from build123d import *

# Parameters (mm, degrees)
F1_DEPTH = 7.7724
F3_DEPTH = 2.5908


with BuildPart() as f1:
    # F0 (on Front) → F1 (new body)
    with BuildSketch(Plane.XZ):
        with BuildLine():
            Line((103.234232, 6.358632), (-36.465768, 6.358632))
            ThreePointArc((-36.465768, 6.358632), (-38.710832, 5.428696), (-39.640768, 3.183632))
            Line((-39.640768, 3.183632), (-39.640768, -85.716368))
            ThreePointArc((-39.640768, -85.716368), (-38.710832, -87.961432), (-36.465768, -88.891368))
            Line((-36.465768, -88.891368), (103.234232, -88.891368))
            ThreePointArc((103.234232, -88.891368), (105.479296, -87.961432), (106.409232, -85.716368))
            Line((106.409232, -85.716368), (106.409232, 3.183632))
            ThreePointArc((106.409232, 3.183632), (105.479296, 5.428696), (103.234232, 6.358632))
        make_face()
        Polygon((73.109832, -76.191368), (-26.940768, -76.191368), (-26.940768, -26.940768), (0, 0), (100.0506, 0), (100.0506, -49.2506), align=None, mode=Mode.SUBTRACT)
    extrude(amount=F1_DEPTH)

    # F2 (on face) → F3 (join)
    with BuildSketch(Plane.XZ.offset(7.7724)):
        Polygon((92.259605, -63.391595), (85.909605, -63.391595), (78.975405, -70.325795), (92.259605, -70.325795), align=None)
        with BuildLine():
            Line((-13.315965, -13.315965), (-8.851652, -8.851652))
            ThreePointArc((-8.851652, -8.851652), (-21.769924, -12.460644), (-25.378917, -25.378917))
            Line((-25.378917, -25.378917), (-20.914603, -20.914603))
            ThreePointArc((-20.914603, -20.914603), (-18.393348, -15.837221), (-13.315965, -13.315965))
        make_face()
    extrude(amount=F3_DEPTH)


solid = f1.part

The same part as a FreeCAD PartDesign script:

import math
import FreeCAD as App
import Part
import Sketcher

V = App.Vector
Q = App.Units.Quantity

doc = App.newDocument("Part")
body = doc.addObject("PartDesign::Body", "Body")

# Sketch on XZ plane
sketch1 = body.newObject("Sketcher::SketchObject", "Sketch")
sketch1.AttachmentSupport = (doc.getObject("XZ_Plane"), [""])
sketch1.MapMode = "FlatFace"
sketch1.addGeometry(Part.LineSegment(V(103.2, 6.4, 0), V(-36.5, 6.4, 0)), False)
sketch1.addGeometry(Part.ArcOfCircle(Part.Circle(V(-36.5, 3.2, 0), V(0, 0, 1), 3.2), math.radians(90), math.radians(180)), False)
sketch1.addGeometry(Part.LineSegment(V(-39.6, 3.2, 0), V(-39.6, -85.7, 0)), False)
sketch1.addGeometry(Part.ArcOfCircle(Part.Circle(V(-36.5, -85.7, 0), V(0, 0, 1), 3.2), math.radians(-180), math.radians(-90)), False)
sketch1.addGeometry(Part.LineSegment(V(-36.5, -88.9, 0), V(103.2, -88.9, 0)), False)
sketch1.addGeometry(Part.ArcOfCircle(Part.Circle(V(103.2, -85.7, 0), V(0, 0, 1), 3.2), math.radians(-90), math.radians(0)), False)
sketch1.addGeometry(Part.LineSegment(V(106.4, -85.7, 0), V(106.4, 3.2, 0)), False)
sketch1.addGeometry(Part.ArcOfCircle(Part.Circle(V(103.2, 3.2, 0), V(0, 0, 1), 3.2), math.radians(0), math.radians(90)), False)
sketch1.addGeometry(Part.LineSegment(V(100.1, -49.3, 0), V(73.1, -76.2, 0)), False)
sketch1.addGeometry(Part.LineSegment(V(73.1, -76.2, 0), V(-26.9, -76.2, 0)), False)
sketch1.addGeometry(Part.LineSegment(V(-26.9, -76.2, 0), V(-26.9, -26.9, 0)), False)
sketch1.addGeometry(Part.LineSegment(V(-26.9, -26.9, 0), V(0, 0, 0)), False)
sketch1.addGeometry(Part.LineSegment(V(0, 0, 0), V(100.1, 0, 0)), False)
sketch1.addGeometry(Part.LineSegment(V(100.1, 0, 0), V(100.1, -49.3, 0)), False)
sketch1.addConstraint(Sketcher.Constraint("Tangent", 0, 2, 1, 1))
sketch1.addConstraint(Sketcher.Constraint("Tangent", 1, 2, 2, 1))
sketch1.addConstraint(Sketcher.Constraint("Tangent", 2, 2, 3, 1))
sketch1.addConstraint(Sketcher.Constraint("Tangent", 3, 2, 4, 1))
sketch1.addConstraint(Sketcher.Constraint("Tangent", 4, 2, 5, 1))
sketch1.addConstraint(Sketcher.Constraint("Tangent", 5, 2, 6, 1))
sketch1.addConstraint(Sketcher.Constraint("Tangent", 6, 2, 7, 1))
sketch1.addConstraint(Sketcher.Constraint("Tangent", 7, 2, 0, 1))
sketch1.addConstraint(Sketcher.Constraint("Coincident", 8, 2, 9, 1))
sketch1.addConstraint(Sketcher.Constraint("Coincident", 9, 2, 10, 1))
sketch1.addConstraint(Sketcher.Constraint("Coincident", 10, 2, 11, 1))
sketch1.addConstraint(Sketcher.Constraint("Coincident", 11, 2, 12, 1))
sketch1.addConstraint(Sketcher.Constraint("Coincident", 12, 2, 13, 1))
sketch1.addConstraint(Sketcher.Constraint("Coincident", 13, 2, 8, 1))
sketch1.addConstraint(Sketcher.Constraint("Horizontal", 0))
sketch1.addConstraint(Sketcher.Constraint("Vertical", 2))
sketch1.addConstraint(Sketcher.Constraint("Horizontal", 4))
sketch1.addConstraint(Sketcher.Constraint("Vertical", 6))
sketch1.addConstraint(Sketcher.Constraint("Horizontal", 9))
sketch1.addConstraint(Sketcher.Constraint("Vertical", 10))
sketch1.addConstraint(Sketcher.Constraint("Horizontal", 12))
sketch1.addConstraint(Sketcher.Constraint("Vertical", 13))
sketch1.addConstraint(Sketcher.Constraint("Coincident", 11, 2, -1, 1))
sketch1.addConstraint(Sketcher.Constraint("Equal", 1, 3))
sketch1.addConstraint(Sketcher.Constraint("Equal", 3, 5))
sketch1.addConstraint(Sketcher.Constraint("Equal", 5, 7))
sketch1.addConstraint(Sketcher.Constraint("Parallel", 8, 11))
sketch1.addConstraint(Sketcher.Constraint("Equal", 9, 12))
sketch1.addConstraint(Sketcher.Constraint("DistanceX", 0, 2, 0, 1, Q("5.5 in")))
sketch1.addConstraint(Sketcher.Constraint("DistanceY", 2, 2, 2, 1, Q("3.5 in")))
sketch1.addConstraint(Sketcher.Constraint("Angle", 8, Q("-135 deg")))
sketch1.addConstraint(Sketcher.Constraint("Radius", 1, Q("0.125 in")))
sketch1.addConstraint(Sketcher.Constraint("Distance", 8, Q("1.5 in")))
sketch1.addConstraint(Sketcher.Constraint("DistanceY", 4, 2, 8, 2, Q("0.5 in")))
sketch1.addConstraint(Sketcher.Constraint("DistanceX", 2, 2, 9, 2, Q("0.5 in")))
sketch1.addConstraint(Sketcher.Constraint("DistanceX", 9, 2, 9, 1, Q("3.939 in")))
sketch1.addConstraint(Sketcher.Constraint("DistanceY", 10, 1, 10, 2, Q("1.939 in")))
pad1 = body.newObject("PartDesign::Pad", "Pad")
pad1.Profile = sketch1
pad1.Length = Q("0.306 in")

# Sketch on XZ plane
sketch2 = body.newObject("Sketcher::SketchObject", "Sketch001")
sketch2.AttachmentSupport = (doc.getObject("XZ_Plane"), [""])
sketch2.MapMode = "FlatFace"
sketch2.AttachmentOffset = App.Placement(V(0, 0, 0.306 * 25.4), App.Rotation())
sketch2.addGeometry(Part.LineSegment(V(92, -63, 0), V(86, -63, 0)), False)
sketch2.addGeometry(Part.LineSegment(V(86, -63, 0), V(79, -70, 0)), False)
sketch2.addGeometry(Part.LineSegment(V(79, -70, 0), V(92, -70, 0)), False)
sketch2.addGeometry(Part.LineSegment(V(92, -70, 0), V(92, -63, 0)), False)
sketch2.addGeometry(Part.LineSegment(V(-13, -13, 0), V(-9, -9, 0)), False)
sketch2.addGeometry(Part.ArcOfCircle(Part.Circle(V(-12, -22, 0), V(0, 0, 1), 14), math.radians(76), math.radians(194)), False)
sketch2.addGeometry(Part.LineSegment(V(-25, -25, 0), V(-21, -21, 0)), False)
sketch2.addGeometry(Part.ArcOfCircle(Part.Circle(V(-12, -22, 0), V(0, 0, 1), 9), math.radians(98), math.radians(172)), False)
sketch2.addConstraint(Sketcher.Constraint("Coincident", 0, 2, 1, 1))
sketch2.addConstraint(Sketcher.Constraint("Coincident", 1, 2, 2, 1))
sketch2.addConstraint(Sketcher.Constraint("Coincident", 2, 2, 3, 1))
sketch2.addConstraint(Sketcher.Constraint("Coincident", 3, 2, 0, 1))
sketch2.addConstraint(Sketcher.Constraint("Coincident", 4, 2, 5, 1))
sketch2.addConstraint(Sketcher.Constraint("Coincident", 5, 2, 6, 1))
sketch2.addConstraint(Sketcher.Constraint("Coincident", 6, 2, 7, 2))
sketch2.addConstraint(Sketcher.Constraint("Coincident", 7, 1, 4, 1))
sketch2.addConstraint(Sketcher.Constraint("Horizontal", 0))
sketch2.addConstraint(Sketcher.Constraint("Horizontal", 2))
sketch2.addConstraint(Sketcher.Constraint("Vertical", 3))
sketch2.addConstraint(Sketcher.Constraint("Coincident", 7, 3, 5, 3))
sketch2.addConstraint(Sketcher.Constraint("Parallel", 1, 4))
sketch2.addConstraint(Sketcher.Constraint("Parallel", 4, 6))
sketch2.addConstraint(Sketcher.Constraint("Equal", 4, 6))
sketch2.addConstraint(Sketcher.Constraint("Radius", 7, Q("0.35 in")))
sketch2.addConstraint(Sketcher.Constraint("Angle", 1, Q("-135 deg")))
sketch2.addConstraint(Sketcher.Constraint("Radius", 5, Q("0.538 in")))
sketch2.addConstraint(Sketcher.Constraint("DistanceX", 0, 2, 0, 1, Q("0.25 in")))
sketch2.addConstraint(Sketcher.Constraint("DistanceX", 2, 1, 2, 2, Q("0.523 in")))
sketch2.addConstraint(Sketcher.Constraint("DistanceY", 5, 3, -1, 1, Q("0.871 in")))
sketch2.addConstraint(Sketcher.Constraint("Distance", 4, 6.313492))
sketch2.addConstraint(Sketcher.Constraint("DistanceX", 5, 3, -1, 1, 12.107169))
sketch2.addConstraint(Sketcher.Constraint("DistanceX", 5, 2, 1, 2, 104.354322))
sketch2.addConstraint(Sketcher.Constraint("DistanceY", 1, 2, 5, 2, 44.946878))
pad2 = body.newObject("PartDesign::Pad", "Pad001")
pad2.Profile = sketch2
pad2.Length = Q("0.102 in")

doc.recompute()
